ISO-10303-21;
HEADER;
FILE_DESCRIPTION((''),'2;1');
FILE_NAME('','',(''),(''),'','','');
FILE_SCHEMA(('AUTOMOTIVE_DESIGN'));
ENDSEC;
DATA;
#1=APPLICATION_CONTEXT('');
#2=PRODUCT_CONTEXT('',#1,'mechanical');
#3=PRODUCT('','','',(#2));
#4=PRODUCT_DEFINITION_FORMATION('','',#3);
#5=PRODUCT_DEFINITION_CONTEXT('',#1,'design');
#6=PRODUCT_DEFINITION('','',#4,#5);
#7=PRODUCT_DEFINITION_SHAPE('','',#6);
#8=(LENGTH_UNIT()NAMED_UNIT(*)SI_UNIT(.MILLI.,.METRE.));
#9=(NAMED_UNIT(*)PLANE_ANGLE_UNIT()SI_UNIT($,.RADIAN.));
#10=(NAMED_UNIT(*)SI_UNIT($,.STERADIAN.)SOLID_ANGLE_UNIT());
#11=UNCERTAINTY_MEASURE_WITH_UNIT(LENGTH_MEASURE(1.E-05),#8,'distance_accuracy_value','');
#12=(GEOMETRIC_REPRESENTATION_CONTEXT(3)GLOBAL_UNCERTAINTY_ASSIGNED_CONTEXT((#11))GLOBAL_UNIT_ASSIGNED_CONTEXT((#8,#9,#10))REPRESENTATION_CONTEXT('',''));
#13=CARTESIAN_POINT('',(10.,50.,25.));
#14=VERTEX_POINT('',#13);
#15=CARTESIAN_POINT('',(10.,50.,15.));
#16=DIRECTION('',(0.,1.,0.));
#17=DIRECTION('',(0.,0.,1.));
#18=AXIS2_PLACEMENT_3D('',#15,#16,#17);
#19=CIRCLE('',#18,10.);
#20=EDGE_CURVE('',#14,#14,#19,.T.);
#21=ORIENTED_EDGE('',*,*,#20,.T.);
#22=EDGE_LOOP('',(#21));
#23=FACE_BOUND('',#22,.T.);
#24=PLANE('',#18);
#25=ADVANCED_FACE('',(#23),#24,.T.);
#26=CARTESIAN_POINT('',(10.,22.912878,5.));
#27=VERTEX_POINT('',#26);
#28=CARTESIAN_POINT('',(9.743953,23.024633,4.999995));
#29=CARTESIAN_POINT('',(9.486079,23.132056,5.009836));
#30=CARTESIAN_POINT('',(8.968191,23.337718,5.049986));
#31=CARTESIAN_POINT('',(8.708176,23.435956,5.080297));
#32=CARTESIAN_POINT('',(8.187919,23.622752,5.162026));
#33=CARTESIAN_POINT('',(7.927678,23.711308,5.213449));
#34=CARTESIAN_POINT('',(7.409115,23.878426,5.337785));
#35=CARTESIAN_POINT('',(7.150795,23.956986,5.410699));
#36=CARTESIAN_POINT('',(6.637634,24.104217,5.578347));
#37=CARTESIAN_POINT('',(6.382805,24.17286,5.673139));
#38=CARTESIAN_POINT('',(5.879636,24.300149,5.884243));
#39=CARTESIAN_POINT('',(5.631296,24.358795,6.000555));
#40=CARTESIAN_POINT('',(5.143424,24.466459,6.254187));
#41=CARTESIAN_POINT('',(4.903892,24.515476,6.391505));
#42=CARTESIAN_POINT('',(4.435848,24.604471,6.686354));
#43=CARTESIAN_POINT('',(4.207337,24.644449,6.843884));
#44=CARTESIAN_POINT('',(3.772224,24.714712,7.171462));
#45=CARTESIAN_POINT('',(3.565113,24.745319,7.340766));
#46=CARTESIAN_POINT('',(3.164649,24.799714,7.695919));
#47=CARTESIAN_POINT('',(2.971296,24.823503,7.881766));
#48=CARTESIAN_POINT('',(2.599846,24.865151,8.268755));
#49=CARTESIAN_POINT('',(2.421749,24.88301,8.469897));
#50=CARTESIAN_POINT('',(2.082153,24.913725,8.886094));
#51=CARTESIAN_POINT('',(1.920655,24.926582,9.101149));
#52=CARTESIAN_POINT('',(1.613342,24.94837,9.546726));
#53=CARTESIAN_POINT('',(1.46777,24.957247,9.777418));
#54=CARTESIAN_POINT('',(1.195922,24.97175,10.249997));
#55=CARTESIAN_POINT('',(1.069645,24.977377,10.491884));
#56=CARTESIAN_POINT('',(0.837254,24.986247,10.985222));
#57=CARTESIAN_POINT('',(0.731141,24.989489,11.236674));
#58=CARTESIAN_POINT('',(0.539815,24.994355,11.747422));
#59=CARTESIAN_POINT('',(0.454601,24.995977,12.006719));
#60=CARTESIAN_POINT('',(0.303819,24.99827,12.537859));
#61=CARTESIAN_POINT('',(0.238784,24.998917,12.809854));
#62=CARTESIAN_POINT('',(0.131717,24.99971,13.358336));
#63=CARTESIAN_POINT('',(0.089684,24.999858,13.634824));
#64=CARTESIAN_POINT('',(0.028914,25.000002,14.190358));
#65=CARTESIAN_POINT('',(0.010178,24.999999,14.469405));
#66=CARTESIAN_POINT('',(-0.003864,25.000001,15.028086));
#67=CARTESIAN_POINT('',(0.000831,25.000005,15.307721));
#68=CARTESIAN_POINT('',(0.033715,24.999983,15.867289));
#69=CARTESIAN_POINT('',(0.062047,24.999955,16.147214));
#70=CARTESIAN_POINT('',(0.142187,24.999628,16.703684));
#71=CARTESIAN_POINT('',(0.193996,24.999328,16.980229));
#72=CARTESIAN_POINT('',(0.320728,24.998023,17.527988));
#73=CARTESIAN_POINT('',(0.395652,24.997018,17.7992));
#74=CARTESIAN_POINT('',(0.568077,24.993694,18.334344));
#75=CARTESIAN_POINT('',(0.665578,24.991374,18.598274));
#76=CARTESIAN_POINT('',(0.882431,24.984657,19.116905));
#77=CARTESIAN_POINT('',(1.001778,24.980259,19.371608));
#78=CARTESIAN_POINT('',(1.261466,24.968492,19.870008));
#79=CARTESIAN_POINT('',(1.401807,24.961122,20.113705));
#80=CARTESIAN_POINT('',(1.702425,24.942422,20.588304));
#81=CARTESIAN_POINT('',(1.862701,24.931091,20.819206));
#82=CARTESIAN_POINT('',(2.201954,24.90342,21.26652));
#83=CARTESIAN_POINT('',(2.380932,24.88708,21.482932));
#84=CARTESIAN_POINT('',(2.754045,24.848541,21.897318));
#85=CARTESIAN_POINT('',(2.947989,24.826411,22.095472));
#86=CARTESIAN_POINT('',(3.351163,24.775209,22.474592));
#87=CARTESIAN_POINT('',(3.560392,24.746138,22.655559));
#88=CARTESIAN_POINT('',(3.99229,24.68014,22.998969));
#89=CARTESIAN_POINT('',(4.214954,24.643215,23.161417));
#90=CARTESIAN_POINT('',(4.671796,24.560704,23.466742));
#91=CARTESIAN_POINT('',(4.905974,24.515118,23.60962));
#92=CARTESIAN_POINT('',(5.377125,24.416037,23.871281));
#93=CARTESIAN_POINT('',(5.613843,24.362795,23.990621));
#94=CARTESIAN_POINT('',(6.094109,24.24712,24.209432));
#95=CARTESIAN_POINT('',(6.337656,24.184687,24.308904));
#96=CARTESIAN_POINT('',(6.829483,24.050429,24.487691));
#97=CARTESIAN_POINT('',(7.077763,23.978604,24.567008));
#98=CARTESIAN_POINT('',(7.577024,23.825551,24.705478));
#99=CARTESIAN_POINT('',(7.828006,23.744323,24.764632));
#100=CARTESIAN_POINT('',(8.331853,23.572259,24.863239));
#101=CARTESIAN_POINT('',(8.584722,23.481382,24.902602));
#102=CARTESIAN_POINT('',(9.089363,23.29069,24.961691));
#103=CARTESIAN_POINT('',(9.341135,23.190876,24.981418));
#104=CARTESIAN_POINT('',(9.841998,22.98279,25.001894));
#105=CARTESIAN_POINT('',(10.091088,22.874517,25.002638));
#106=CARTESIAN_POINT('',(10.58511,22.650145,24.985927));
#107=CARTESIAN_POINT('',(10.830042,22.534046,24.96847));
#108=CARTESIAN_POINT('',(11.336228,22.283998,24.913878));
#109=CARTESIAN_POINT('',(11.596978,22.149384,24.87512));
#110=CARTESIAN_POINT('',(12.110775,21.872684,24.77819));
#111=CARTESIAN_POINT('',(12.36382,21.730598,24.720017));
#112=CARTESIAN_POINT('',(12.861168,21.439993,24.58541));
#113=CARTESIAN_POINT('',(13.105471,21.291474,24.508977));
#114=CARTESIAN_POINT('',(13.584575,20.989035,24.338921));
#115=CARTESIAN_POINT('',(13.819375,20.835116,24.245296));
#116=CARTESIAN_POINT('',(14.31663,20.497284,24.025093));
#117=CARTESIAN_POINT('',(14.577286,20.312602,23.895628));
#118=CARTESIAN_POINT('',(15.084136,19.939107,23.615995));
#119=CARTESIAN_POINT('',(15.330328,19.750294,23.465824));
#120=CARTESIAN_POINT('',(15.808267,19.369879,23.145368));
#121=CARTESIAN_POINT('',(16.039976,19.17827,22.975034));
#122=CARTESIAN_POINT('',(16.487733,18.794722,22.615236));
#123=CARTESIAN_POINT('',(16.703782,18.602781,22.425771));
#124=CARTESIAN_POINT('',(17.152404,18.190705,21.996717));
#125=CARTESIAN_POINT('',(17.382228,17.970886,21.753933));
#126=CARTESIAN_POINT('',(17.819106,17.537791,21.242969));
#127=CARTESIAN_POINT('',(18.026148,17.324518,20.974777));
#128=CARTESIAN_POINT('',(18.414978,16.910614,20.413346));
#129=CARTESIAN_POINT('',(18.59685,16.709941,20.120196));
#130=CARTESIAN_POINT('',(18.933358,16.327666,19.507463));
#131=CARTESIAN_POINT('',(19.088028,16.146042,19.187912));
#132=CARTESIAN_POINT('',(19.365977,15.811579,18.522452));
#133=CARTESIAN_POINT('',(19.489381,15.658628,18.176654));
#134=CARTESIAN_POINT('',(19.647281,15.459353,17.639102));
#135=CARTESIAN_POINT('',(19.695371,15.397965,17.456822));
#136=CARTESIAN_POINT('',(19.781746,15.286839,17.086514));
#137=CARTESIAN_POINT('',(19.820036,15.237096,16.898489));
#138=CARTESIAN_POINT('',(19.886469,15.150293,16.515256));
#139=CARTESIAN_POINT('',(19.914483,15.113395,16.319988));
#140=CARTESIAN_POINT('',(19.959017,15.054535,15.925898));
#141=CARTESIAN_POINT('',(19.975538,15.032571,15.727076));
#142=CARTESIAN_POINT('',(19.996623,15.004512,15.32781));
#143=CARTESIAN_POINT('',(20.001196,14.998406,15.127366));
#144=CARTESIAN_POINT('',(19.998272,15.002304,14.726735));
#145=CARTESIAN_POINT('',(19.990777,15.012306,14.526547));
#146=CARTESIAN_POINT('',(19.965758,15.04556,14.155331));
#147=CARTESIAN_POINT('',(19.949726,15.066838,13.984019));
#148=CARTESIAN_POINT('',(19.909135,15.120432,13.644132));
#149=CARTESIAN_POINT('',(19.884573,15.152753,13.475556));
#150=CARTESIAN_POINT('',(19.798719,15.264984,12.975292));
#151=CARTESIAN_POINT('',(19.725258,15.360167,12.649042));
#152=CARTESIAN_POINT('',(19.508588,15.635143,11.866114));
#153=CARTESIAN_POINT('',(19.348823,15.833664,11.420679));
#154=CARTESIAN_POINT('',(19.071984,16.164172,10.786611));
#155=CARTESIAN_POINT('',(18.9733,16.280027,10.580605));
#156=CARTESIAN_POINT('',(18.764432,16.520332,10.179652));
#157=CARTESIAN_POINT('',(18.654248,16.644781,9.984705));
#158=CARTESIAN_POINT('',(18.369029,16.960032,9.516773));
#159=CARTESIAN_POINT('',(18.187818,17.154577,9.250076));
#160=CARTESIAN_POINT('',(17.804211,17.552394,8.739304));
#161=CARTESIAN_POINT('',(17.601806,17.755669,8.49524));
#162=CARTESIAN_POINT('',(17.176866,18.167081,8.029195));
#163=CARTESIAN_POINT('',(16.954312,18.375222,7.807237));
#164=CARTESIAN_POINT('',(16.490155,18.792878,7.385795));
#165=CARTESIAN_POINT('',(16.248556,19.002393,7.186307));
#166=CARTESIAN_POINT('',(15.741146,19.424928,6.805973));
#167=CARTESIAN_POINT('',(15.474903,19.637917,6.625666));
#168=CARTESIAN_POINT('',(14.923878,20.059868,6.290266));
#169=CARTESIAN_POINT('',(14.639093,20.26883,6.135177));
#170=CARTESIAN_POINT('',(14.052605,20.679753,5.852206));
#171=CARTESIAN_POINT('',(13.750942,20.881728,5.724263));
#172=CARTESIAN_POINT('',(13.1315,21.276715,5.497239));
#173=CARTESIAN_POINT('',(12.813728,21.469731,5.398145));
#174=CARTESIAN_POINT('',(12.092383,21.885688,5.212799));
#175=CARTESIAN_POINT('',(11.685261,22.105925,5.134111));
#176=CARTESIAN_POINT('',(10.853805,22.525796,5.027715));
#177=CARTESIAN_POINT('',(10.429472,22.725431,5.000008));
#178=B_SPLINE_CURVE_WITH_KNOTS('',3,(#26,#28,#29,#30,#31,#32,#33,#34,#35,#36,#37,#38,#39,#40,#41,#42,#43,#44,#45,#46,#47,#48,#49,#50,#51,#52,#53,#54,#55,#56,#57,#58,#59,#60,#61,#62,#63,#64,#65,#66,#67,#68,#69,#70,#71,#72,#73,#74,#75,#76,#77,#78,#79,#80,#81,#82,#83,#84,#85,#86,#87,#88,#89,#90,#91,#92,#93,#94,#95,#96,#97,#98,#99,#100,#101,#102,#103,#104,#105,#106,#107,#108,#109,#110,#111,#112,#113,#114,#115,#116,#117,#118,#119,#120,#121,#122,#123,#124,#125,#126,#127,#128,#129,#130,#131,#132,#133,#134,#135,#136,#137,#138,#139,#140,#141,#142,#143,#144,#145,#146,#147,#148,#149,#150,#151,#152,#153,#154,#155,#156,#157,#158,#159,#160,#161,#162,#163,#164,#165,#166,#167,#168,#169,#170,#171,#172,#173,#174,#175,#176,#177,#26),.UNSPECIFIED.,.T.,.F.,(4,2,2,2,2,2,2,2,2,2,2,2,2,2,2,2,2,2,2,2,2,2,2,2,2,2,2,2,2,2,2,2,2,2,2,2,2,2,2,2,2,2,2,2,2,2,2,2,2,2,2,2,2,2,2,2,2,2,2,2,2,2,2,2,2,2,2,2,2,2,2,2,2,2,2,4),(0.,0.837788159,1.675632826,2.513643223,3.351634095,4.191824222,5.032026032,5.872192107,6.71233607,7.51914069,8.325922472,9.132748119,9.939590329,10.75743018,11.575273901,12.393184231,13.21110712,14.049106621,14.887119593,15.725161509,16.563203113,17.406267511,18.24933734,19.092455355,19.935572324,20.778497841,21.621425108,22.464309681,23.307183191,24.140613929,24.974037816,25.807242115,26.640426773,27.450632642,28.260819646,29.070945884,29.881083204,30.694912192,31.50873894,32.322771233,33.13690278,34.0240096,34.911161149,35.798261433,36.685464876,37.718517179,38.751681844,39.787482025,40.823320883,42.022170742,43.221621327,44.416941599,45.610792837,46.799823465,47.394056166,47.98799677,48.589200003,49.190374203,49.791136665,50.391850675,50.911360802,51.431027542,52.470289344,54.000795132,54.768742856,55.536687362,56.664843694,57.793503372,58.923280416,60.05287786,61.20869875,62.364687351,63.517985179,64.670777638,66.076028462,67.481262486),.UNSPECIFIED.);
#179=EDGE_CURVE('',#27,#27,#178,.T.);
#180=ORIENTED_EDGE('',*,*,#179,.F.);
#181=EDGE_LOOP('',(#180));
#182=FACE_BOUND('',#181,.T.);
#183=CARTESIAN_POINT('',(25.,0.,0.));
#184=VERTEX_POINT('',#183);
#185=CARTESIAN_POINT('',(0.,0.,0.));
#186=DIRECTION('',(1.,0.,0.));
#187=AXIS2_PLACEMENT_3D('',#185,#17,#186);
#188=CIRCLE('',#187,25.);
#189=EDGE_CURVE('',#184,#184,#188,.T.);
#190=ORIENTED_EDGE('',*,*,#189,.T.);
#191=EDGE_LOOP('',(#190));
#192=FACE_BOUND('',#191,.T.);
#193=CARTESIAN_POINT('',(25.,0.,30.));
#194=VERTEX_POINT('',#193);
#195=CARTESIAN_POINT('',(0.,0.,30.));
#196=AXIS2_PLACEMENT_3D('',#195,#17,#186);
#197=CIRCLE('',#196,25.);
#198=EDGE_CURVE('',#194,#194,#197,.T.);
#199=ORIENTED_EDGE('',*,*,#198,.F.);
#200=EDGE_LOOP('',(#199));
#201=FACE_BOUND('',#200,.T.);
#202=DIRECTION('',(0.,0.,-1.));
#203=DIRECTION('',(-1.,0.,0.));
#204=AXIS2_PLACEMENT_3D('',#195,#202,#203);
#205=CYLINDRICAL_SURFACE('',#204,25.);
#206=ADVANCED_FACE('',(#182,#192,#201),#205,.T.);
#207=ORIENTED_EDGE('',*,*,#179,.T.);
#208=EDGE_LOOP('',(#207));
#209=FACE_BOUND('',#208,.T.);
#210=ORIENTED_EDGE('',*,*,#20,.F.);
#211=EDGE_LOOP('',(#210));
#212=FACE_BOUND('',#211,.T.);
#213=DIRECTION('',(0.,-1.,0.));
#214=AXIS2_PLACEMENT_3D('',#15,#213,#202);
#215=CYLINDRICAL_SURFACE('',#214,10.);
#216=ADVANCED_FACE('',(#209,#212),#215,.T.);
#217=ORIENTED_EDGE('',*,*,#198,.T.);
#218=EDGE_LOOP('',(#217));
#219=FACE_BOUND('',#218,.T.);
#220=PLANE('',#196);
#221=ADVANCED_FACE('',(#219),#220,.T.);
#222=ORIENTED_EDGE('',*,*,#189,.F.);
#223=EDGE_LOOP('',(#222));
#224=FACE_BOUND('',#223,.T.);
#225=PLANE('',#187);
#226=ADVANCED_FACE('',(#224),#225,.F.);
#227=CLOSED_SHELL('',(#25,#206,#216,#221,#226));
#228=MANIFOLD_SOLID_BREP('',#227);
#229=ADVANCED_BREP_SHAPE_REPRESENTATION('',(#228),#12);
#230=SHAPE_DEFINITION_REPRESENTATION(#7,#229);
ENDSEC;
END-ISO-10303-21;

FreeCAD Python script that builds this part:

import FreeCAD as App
import Part
import Sketcher

V = App.Vector

doc = App.newDocument("Part")
params = doc.addObject("Spreadsheet::Sheet", "Params")
for row, (alias, value) in enumerate([
    ("sketch1_diameter", "50 mm"),
    ("pad1_length", "30 mm"),
    ("sketch2_diameter", "20 mm"),
    ("pad2_length", "50 mm"),
], start=1):
    params.set(f"A{row}", alias)
    params.set(f"B{row}", "=" + value)
    params.setAlias(f"B{row}", alias)

body = doc.addObject("PartDesign::Body", "Body")

# Sketch on XY plane
sketch1 = body.newObject("Sketcher::SketchObject", "Sketch")
sketch1.AttachmentSupport = (doc.getObject("XY_Plane"), [""])
sketch1.MapMode = "FlatFace"
sketch1.addGeometry(Part.Circle(V(0, 0, 0), V(0, 0, 1), 25), False)
sketch1.addConstraint(Sketcher.Constraint("Coincident", 0, 3, -1, 1))
sketch1.addConstraint(Sketcher.Constraint("Diameter", 0, 50.0))
sketch1.setExpression("Constraints[1]", "Params.sketch1_diameter")
pad1 = body.newObject("PartDesign::Pad", "Pad")
pad1.Profile = sketch1
pad1.setExpression("Length", "Params.pad1_length")

# Sketch on XZ plane
sketch2 = body.newObject("Sketcher::SketchObject", "Sketch001")
sketch2.AttachmentSupport = (doc.getObject("XZ_Plane"), [""])
sketch2.MapMode = "FlatFace"
sketch2.addGeometry(Part.Circle(V(10, 15, 0), V(0, 0, 1), 10), False)
sketch2.addConstraint(Sketcher.Constraint("Diameter", 0, 20.0))
sketch2.addConstraint(Sketcher.Constraint("DistanceX", -1, 1, 0, 3, 10.0))
sketch2.addConstraint(Sketcher.Constraint("DistanceY", -1, 1, 0, 3, 15.0))
sketch2.setExpression("Constraints[0]", "Params.sketch2_diameter")
pad2 = body.newObject("PartDesign::Pad", "Pad001")
pad2.Profile = sketch2
pad2.setExpression("Length", "Params.pad2_length")
pad2.Reversed = True

doc.recompute()
